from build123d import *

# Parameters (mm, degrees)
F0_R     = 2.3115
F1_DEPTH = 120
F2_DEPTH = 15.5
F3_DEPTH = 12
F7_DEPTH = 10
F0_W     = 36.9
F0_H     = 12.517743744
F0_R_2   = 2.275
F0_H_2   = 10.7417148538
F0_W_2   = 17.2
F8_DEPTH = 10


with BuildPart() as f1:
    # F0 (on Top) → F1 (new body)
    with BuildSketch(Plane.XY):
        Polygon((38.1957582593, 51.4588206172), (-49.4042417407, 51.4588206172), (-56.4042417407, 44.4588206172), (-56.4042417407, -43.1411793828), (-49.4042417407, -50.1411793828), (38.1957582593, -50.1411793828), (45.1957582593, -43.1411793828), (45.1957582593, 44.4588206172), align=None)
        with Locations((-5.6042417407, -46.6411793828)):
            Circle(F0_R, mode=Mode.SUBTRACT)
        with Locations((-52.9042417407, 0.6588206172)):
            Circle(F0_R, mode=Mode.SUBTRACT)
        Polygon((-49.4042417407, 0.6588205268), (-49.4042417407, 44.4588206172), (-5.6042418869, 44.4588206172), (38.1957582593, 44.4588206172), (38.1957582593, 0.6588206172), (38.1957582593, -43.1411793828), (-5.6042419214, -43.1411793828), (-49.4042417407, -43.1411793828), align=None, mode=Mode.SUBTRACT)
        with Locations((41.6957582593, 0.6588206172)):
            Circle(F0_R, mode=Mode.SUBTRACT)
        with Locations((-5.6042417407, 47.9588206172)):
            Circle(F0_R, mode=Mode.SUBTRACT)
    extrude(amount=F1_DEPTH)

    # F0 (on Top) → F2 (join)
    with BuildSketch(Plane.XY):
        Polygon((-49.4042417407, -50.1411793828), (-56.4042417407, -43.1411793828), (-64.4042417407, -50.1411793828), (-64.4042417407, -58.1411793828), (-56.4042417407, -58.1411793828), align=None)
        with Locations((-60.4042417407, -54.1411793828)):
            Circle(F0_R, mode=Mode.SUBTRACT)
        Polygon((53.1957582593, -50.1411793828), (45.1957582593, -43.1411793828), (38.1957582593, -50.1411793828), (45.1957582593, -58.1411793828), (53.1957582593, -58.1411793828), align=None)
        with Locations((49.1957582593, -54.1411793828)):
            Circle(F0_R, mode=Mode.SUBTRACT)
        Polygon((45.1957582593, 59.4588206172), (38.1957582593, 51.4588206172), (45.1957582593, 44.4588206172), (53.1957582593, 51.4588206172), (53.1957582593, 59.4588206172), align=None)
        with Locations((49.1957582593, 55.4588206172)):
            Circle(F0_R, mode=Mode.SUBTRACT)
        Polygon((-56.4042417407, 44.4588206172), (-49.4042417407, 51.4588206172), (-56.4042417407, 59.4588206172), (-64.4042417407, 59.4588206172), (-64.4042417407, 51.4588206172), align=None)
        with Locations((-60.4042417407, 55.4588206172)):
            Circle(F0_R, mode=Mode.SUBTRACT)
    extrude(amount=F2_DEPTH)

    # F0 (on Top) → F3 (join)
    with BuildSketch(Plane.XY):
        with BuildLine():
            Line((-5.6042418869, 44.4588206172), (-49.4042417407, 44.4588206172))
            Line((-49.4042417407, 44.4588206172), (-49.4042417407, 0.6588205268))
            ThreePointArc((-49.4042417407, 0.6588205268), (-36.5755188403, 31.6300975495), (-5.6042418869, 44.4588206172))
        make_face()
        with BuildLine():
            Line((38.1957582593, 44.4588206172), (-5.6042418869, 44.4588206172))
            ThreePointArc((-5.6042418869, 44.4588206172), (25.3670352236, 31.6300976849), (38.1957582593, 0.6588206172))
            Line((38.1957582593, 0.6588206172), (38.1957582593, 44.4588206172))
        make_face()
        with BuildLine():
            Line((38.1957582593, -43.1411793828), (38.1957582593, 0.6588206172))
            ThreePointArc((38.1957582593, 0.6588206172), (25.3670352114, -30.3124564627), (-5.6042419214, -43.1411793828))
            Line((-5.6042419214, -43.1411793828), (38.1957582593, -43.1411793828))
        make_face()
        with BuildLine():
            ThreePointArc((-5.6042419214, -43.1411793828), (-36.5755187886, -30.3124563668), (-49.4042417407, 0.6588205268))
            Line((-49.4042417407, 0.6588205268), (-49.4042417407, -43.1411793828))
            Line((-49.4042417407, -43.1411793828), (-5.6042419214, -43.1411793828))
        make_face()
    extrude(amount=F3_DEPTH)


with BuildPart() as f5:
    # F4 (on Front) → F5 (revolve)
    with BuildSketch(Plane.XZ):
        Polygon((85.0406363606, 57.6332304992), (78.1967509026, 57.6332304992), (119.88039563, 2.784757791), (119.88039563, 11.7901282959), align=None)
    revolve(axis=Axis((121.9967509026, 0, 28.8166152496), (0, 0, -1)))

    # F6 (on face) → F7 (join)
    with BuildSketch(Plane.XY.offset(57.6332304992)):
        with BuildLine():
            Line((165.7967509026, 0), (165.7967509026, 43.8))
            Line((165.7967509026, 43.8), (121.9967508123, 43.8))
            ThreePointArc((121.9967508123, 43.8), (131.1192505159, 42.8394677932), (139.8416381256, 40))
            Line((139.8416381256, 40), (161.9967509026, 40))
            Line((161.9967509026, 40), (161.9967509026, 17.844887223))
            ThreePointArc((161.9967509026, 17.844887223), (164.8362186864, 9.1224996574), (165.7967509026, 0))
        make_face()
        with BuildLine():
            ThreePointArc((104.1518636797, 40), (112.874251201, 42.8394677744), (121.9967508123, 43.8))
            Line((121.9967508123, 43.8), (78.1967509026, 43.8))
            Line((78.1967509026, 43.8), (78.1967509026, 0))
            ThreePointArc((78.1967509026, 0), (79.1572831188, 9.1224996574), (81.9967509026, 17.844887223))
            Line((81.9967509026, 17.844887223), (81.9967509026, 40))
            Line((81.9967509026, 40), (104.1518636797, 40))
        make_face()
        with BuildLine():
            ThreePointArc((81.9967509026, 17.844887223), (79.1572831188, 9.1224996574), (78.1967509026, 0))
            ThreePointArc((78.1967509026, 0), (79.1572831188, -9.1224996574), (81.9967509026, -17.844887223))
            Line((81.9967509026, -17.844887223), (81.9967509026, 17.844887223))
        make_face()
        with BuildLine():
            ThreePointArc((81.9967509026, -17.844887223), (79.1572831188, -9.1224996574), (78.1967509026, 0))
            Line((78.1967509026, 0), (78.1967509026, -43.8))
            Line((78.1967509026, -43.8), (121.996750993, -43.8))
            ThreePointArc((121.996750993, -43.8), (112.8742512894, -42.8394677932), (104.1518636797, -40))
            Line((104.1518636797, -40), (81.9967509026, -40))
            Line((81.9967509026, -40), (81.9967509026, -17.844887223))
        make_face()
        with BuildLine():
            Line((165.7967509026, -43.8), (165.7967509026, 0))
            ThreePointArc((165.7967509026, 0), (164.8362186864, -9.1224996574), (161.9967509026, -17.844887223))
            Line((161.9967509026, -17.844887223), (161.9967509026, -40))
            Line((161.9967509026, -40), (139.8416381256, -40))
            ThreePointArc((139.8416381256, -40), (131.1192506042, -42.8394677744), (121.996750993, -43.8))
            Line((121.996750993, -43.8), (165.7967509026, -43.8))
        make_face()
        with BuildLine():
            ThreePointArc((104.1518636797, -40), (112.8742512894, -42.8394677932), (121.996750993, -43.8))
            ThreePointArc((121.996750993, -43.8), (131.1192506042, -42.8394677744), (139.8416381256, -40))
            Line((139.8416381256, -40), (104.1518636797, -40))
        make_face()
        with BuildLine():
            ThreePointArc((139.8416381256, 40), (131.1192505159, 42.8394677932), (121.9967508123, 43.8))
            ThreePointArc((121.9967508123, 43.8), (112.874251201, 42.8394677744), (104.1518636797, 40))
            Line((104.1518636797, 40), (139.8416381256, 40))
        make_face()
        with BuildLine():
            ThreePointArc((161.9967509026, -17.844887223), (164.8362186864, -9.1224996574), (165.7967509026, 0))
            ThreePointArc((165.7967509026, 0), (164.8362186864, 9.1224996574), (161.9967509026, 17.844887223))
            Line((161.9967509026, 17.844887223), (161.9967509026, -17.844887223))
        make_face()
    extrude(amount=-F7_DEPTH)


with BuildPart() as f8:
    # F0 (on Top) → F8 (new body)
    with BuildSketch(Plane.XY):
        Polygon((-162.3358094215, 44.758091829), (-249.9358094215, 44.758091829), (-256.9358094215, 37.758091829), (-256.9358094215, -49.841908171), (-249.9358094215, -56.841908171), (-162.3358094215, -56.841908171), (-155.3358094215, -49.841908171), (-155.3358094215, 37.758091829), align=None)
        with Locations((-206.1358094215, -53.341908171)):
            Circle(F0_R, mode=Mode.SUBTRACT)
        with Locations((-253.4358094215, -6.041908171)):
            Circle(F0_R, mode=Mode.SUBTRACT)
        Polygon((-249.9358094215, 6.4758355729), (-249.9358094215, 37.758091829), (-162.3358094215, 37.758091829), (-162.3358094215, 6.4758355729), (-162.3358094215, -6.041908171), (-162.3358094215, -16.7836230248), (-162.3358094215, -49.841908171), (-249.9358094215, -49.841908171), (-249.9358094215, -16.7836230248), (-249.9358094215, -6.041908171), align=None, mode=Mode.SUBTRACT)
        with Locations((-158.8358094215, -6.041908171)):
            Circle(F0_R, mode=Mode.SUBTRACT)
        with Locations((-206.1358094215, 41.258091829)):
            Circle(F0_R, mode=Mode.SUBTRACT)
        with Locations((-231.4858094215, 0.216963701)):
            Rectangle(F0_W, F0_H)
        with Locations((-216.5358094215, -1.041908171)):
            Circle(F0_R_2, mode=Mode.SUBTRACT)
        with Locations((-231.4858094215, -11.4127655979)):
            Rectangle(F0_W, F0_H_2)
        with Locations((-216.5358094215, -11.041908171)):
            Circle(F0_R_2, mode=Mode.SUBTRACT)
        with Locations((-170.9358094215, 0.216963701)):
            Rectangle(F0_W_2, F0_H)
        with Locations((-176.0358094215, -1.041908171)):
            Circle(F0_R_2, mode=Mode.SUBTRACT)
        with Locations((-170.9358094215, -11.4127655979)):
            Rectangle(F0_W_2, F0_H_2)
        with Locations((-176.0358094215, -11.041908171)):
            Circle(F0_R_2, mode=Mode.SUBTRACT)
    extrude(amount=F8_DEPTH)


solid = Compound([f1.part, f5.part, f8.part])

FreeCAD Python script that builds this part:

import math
import FreeCAD as App
import Part
import Sketcher
from FreeCAD import Vector
Q = App.Units.Quantity

doc = App.newDocument("Part")
body = doc.addObject("PartDesign::Body", "Body")

# Sketch on XY plane
sketch1 = body.newObject("Sketcher::SketchObject", "Sketch")
sketch1.AttachmentSupport = (doc.getObject("XY_Plane"), [""])
sketch1.MapMode = "FlatFace"
sketch1.addGeometry([
    Part.LineSegment(Vector(38.195758, 51.458821, 0), Vector(-49.404242, 51.458821, 0)),  # 0
    Part.LineSegment(Vector(-49.404242, 51.458821, 0), Vector(-56.404242, 44.458821, 0)),  # 1
    Part.LineSegment(Vector(-56.404242, 44.458821, 0), Vector(-56.404242, -43.141179, 0)),  # 2
    Part.LineSegment(Vector(-56.404242, -43.141179, 0), Vector(-49.404242, -50.141179, 0)),  # 3
    Part.LineSegment(Vector(-49.404242, -50.141179, 0), Vector(38.195758, -50.141179, 0)),  # 4
    Part.LineSegment(Vector(38.195758, -50.141179, 0), Vector(45.195758, -43.141179, 0)),  # 5
    Part.LineSegment(Vector(45.195758, -43.141179, 0), Vector(45.195758, 44.458821, 0)),  # 6
    Part.LineSegment(Vector(45.195758, 44.458821, 0), Vector(38.195758, 51.458821, 0)),  # 7
    Part.Circle(Vector(-5.604242, -46.641179, 0), Vector(0, 0, 1), 2.3115),  # 8
    Part.Circle(Vector(-52.904242, 0.658821, 0), Vector(0, 0, 1), 2.3115),  # 9
    Part.Circle(Vector(-5.604242, 47.958821, 0), Vector(0, 0, 1), 2.3115),  # 10
    Part.LineSegment(Vector(-49.404242, -43.141179, 0), Vector(-49.404242, 44.458821, 0)),  # 11
    Part.LineSegment(Vector(-49.404242, 44.458821, 0), Vector(38.195758, 44.458821, 0)),  # 12
    Part.LineSegment(Vector(38.195758, 44.458821, 0), Vector(38.195758, -43.141179, 0)),  # 13
    Part.LineSegment(Vector(38.195758, -43.141179, 0), Vector(-49.404242, -43.141179, 0)),  # 14
    Part.Circle(Vector(41.695758, 0.658821, 0), Vector(0, 0, 1), 2.3115),  # 15
], False)
sketch1.addConstraint([
    Sketcher.Constraint("Coincident", 0, 2, 1, 1),
    Sketcher.Constraint("Coincident", 1, 2, 2, 1),
    Sketcher.Constraint("Coincident", 2, 2, 3, 1),
    Sketcher.Constraint("Coincident", 3, 2, 4, 1),
    Sketcher.Constraint("Coincident", 4, 2, 5, 1),
    Sketcher.Constraint("Coincident", 5, 2, 6, 1),
    Sketcher.Constraint("Coincident", 6, 2, 7, 1),
    Sketcher.Constraint("Coincident", 7, 2, 0, 1),
    Sketcher.Constraint("Coincident", 11, 2, 12, 1),
    Sketcher.Constraint("Coincident", 12, 2, 13, 1),
    Sketcher.Constraint("Coincident", 13, 2, 14, 1),
    Sketcher.Constraint("Coincident", 14, 2, 11, 1),
    Sketcher.Constraint("Horizontal", 0),
    Sketcher.Constraint("Vertical", 2),
    Sketcher.Constraint("Horizontal", 4),
    Sketcher.Constraint("Vertical", 6),
    Sketcher.Constraint("Vertical", 11),
    Sketcher.Constraint("Horizontal", 12),
    Sketcher.Constraint("Vertical", 13),
    Sketcher.Constraint("Horizontal", 14),
    Sketcher.Constraint("Equal", 8, 9),
    Sketcher.Constraint("Equal", 9, 10),
    Sketcher.Constraint("Equal", 10, 15),
    Sketcher.Constraint("Perpendicular", 1, 3),
    Sketcher.Constraint("Perpendicular", 3, 5),
    Sketcher.Constraint("Perpendicular", 5, 7),
    Sketcher.Constraint("Horizontal", 9, 3, 15, 3),
    Sketcher.Constraint("Horizontal", 2, 2, 5, 2),
    Sketcher.Constraint("Horizontal", 1, 2, 6, 2),
    Sketcher.Constraint("Horizontal", 6, 2, 11, 2),
    Sketcher.Constraint("Horizontal", 5, 2, 13, 2),
    Sketcher.Constraint("Vertical", 8, 3, 10, 3),
    Sketcher.Constraint("Vertical", 0, 2, 3, 2),
    Sketcher.Constraint("Vertical", 4, 2, 7, 2),
    Sketcher.Constraint("Vertical", 3, 2, 11, 2),
    Sketcher.Constraint("Vertical", 7, 2, 12, 2),
    Sketcher.Constraint("Equal", 14, 2),
    Sketcher.Constraint("Diameter", 8, Q("4.623 mm")),
    Sketcher.Constraint("DistanceX", 0, 2, 0, 1, Q("87.6 mm")),
    Sketcher.Constraint("DistanceX", 1, 2, 0, 2, Q("7 mm")),
    Sketcher.Constraint("DistanceX", 9, 3, 8, 3, Q("47.3 mm")),
    Sketcher.Constraint("DistanceY", 8, 3, 9, 3, Q("47.3 mm")),
    Sketcher.Constraint("DistanceY", 9, 3, 10, 3, Q("47.3 mm")),
    Sketcher.Constraint("DistanceX", 8, 3, 15, 3, Q("47.3 mm")),
    Sketcher.Constraint("DistanceX", 0, 2, 10, 3, Q("43.8 mm")),
    Sketcher.Constraint("DistanceY", 10, 3, 0, 2, Q("3.5 mm")),
    Sketcher.Constraint("DistanceX", 8, 3, -1, 1, Q("5.604242 mm")),
    Sketcher.Constraint("DistanceY", 8, 3, -1, 1, Q("46.641179 mm")),
])
pad1 = body.newObject("PartDesign::Pad", "Pad")
pad1.Profile = sketch1
pad1.Length = 120

# Sketch on XY plane
sketch2 = body.newObject("Sketcher::SketchObject", "Sketch001")
sketch2.AttachmentSupport = (doc.getObject("XY_Plane"), [""])
sketch2.MapMode = "FlatFace"
sketch2.addGeometry([
    Part.LineSegment(Vector(-49.404242, -50.141179, 0), Vector(-56.404242, -43.141179, 0)),  # 0
    Part.LineSegment(Vector(-56.404242, -43.141179, 0), Vector(-64.404242, -50.141179, 0)),  # 1
    Part.LineSegment(Vector(-64.404242, -50.141179, 0), Vector(-64.404242, -58.141179, 0)),  # 2
    Part.LineSegment(Vector(-64.404242, -58.141179, 0), Vector(-56.404242, -58.141179, 0)),  # 3
    Part.LineSegment(Vector(-56.404242, -58.141179, 0), Vector(-49.404242, -50.141179, 0)),  # 4
    Part.Circle(Vector(-60.404242, -54.141179, 0), Vector(0, 0, 1), 2.3115),  # 5
    Part.LineSegment(Vector(53.195758, -50.141179, 0), Vector(45.195758, -43.141179, 0)),  # 6
    Part.LineSegment(Vector(45.195758, -43.141179, 0), Vector(38.195758, -50.141179, 0)),  # 7
    Part.LineSegment(Vector(38.195758, -50.141179, 0), Vector(45.195758, -58.141179, 0)),  # 8
    Part.LineSegment(Vector(45.195758, -58.141179, 0), Vector(53.195758, -58.141179, 0)),  # 9
    Part.LineSegment(Vector(53.195758, -58.141179, 0), Vector(53.195758, -50.141179, 0)),  # 10
    Part.Circle(Vector(49.195758, -54.141179, 0), Vector(0, 0, 1), 2.3115),  # 11
    Part.LineSegment(Vector(45.195758, 59.458821, 0), Vector(38.195758, 51.458821, 0)),  # 12
    Part.LineSegment(Vector(38.195758, 51.458821, 0), Vector(45.195758, 44.458821, 0)),  # 13
    Part.LineSegment(Vector(45.195758, 44.458821, 0), Vector(53.195758, 51.458821, 0)),  # 14
    Part.LineSegment(Vector(53.195758, 51.458821, 0), Vector(53.195758, 59.458821, 0)),  # 15
    Part.LineSegment(Vector(53.195758, 59.458821, 0), Vector(45.195758, 59.458821, 0)),  # 16
    Part.Circle(Vector(49.195758, 55.458821, 0), Vector(0, 0, 1), 2.3115),  # 17
    Part.LineSegment(Vector(-56.404242, 44.458821, 0), Vector(-49.404242, 51.458821, 0)),  # 18
    Part.LineSegment(Vector(-49.404242, 51.458821, 0), Vector(-56.404242, 59.458821, 0)),  # 19
    Part.LineSegment(Vector(-56.404242, 59.458821, 0), Vector(-64.404242, 59.458821, 0)),  # 20
    Part.LineSegment(Vector(-64.404242, 59.458821, 0), Vector(-64.404242, 51.458821, 0)),  # 21
    Part.LineSegment(Vector(-64.404242, 51.458821, 0), Vector(-56.404242, 44.458821, 0)),  # 22
    Part.Circle(Vector(-60.404242, 55.458821, 0), Vector(0, 0, 1), 2.3115),  # 23
], False)
sketch2.addConstraint([
    Sketcher.Constraint("Coincident", 0, 2, 1, 1),
    Sketcher.Constraint("Coincident", 1, 2, 2, 1),
    Sketcher.Constraint("Coincident", 2, 2, 3, 1),
    Sketcher.Constraint("Coincident", 3, 2, 4, 1),
    Sketcher.Constraint("Coincident", 4, 2, 0, 1),
    Sketcher.Constraint("Coincident", 6, 2, 7, 1),
    Sketcher.Constraint("Coincident", 7, 2, 8, 1),
    Sketcher.Constraint("Coincident", 8, 2, 9, 1),
    Sketcher.Constraint("Coincident", 9, 2, 10, 1),
    Sketcher.Constraint("Coincident", 10, 2, 6, 1),
    Sketcher.Constraint("Coincident", 12, 2, 13, 1),
    Sketcher.Constraint("Coincident", 13, 2, 14, 1),
    Sketcher.Constraint("Coincident", 14, 2, 15, 1),
    Sketcher.Constraint("Coincident", 15, 2, 16, 1),
    Sketcher.Constraint("Coincident", 16, 2, 12, 1),
    Sketcher.Constraint("Coincident", 18, 2, 19, 1),
    Sketcher.Constraint("Coincident", 19, 2, 20, 1),
    Sketcher.Constraint("Coincident", 20, 2, 21, 1),
    Sketcher.Constraint("Coincident", 21, 2, 22, 1),
    Sketcher.Constraint("Coincident", 22, 2, 18, 1),
    Sketcher.Constraint("Vertical", 2),
    Sketcher.Constraint("Horizontal", 3),
    Sketcher.Constraint("Horizontal", 9),
    Sketcher.Constraint("Vertical", 10),
    Sketcher.Constraint("Vertical", 15),
    Sketcher.Constraint("Horizontal", 16),
    Sketcher.Constraint("Horizontal", 20),
    Sketcher.Constraint("Vertical", 21),
    Sketcher.Constraint("Equal", 5, 11),
    Sketcher.Constraint("Equal", 11, 17),
    Sketcher.Constraint("Equal", 17, 23),
    Sketcher.Constraint("Perpendicular", 4, 6),
    Sketcher.Constraint("Perpendicular", 0, 7),
    Sketcher.Constraint("Perpendicular", 1, 8),
    Sketcher.Constraint("Perpendicular", 6, 12),
    Sketcher.Constraint("Perpendicular", 7, 13),
    Sketcher.Constraint("Perpendicular", 8, 14),
    Sketcher.Constraint("Perpendicular", 13, 18),
    Sketcher.Constraint("Perpendicular", 14, 19),
    Sketcher.Constraint("Perpendicular", 12, 22),
    Sketcher.Constraint("Horizontal", 5, 3, 11, 3),
    Sketcher.Constraint("Horizontal", 17, 3, 23, 3),
    Sketcher.Constraint("Horizontal", 1, 2, 4, 2),
    Sketcher.Constraint("Horizontal", 0, 2, 6, 2),
    Sketcher.Constraint("Horizontal", 4, 2, 7, 2),
    Sketcher.Constraint("Horizontal", 3, 2, 8, 2),
    Sketcher.Constraint("Horizontal", 7, 2, 10, 2),
    Sketcher.Constraint("Horizontal", 12, 2, 14, 2),
    Sketcher.Constraint("Horizontal", 14, 2, 18, 2),
    Sketcher.Constraint("Horizontal", 16, 2, 19, 2),
    Sketcher.Constraint("Horizontal", 18, 2, 21, 2),
    Sketcher.Constraint("Horizontal", 13, 2, 22, 2),
    Sketcher.Constraint("Vertical", 11, 3, 17, 3),
    Sketcher.Constraint("Vertical", 5, 3, 23, 3),
    Sketcher.Constraint("Vertical", 0, 2, 3, 2),
    Sketcher.Constraint("Vertical", 6, 2, 8, 2),
    Sketcher.Constraint("Vertical", 7, 2, 12, 2),
    Sketcher.Constraint("Vertical", 8, 2, 13, 2),
    Sketcher.Constraint("Vertical", 13, 2, 16, 2),
    Sketcher.Constraint("Vertical", 4, 2, 18, 2),
    Sketcher.Constraint("Vertical", 3, 2, 19, 2),
    Sketcher.Constraint("DistanceX", 3, 1, 3, 2, Q("8 mm")),
    Sketcher.Constraint("Diameter", 5, Q("4.623 mm")),
    Sketcher.Constraint("DistanceX", 5, 3, 0, 2, Q("4 mm")),
    Sketcher.Constraint("DistanceY", 5, 3, 0, 2, Q("11 mm")),
    Sketcher.Constraint("DistanceY", 5, 3, 1, 2, Q("4 mm")),
    Sketcher.Constraint("DistanceX", 6, 2, 11, 3, Q("4 mm")),
    Sketcher.Constraint("DistanceY", 12, 2, 17, 3, Q("4 mm")),
    Sketcher.Constraint("DistanceX", 5, 3, 11, 3, Q("109.6 mm")),
    Sketcher.Constraint("DistanceY", 11, 3, 17, 3, Q("109.6 mm")),
    Sketcher.Constraint("DistanceX", 5, 3, -1, 1, Q("60.404242 mm")),
    Sketcher.Constraint("DistanceY", 5, 3, -1, 1, Q("54.141179 mm")),
])
pad2 = body.newObject("PartDesign::Pad", "Pad001")
pad2.Profile = sketch2
pad2.Length = 15.5

# Sketch on XY plane
sketch3 = body.newObject("Sketcher::SketchObject", "Sketch002")
sketch3.AttachmentSupport = (doc.getObject("XY_Plane"), [""])
sketch3.MapMode = "FlatFace"
sketch3.addGeometry([
    Part.LineSegment(Vector(-5.604242, 44.458821, 0), Vector(-49.404242, 44.458821, 0)),  # 0
    Part.LineSegment(Vector(-49.404242, 44.458821, 0), Vector(-49.404242, 0.658821, 0)),  # 1
    Part.ArcOfCircle(Part.Circle(Vector(-5.604242, 0.658821, 0), Vector(0, 0, 1), 43.8), math.radians(90), math.radians(180)),  # 2
    Part.LineSegment(Vector(38.195758, 44.458821, 0), Vector(-5.604242, 44.458821, 0)),  # 3
    Part.ArcOfCircle(Part.Circle(Vector(-5.604242, 0.658821, 0), Vector(0, 0, 1), 43.8), math.radians(0), math.radians(90)),  # 4
    Part.LineSegment(Vector(38.195758, 0.658821, 0), Vector(38.195758, 44.458821, 0)),  # 5
    Part.LineSegment(Vector(38.195758, -43.141179, 0), Vector(38.195758, 0.658821, 0)),  # 6
    Part.ArcOfCircle(Part.Circle(Vector(-5.604242, 0.658821, 0), Vector(0, 0, 1), 43.8), math.radians(-90), math.radians(0)),  # 7
    Part.LineSegment(Vector(-5.604242, -43.141179, 0), Vector(38.195758, -43.141179, 0)),  # 8
    Part.ArcOfCircle(Part.Circle(Vector(-5.604242, 0.658821, 0), Vector(0, 0, 1), 43.8), math.radians(-180), math.radians(-90)),  # 9
    Part.LineSegment(Vector(-49.404242, 0.658821, 0), Vector(-49.404242, -43.141179, 0)),  # 10
    Part.LineSegment(Vector(-49.404242, -43.141179, 0), Vector(-5.604242, -43.141179, 0)),  # 11
], False)
sketch3.addConstraint([
    Sketcher.Constraint("Coincident", 0, 2, 1, 1),
    Sketcher.Constraint("Tangent", 1, 2, 2, 2),
    Sketcher.Constraint("Tangent", 2, 1, 0, 1),
    Sketcher.Constraint("Tangent", 3, 2, 4, 2),
    Sketcher.Constraint("Tangent", 4, 1, 5, 1),
    Sketcher.Constraint("Coincident", 5, 2, 3, 1),
    Sketcher.Constraint("Tangent", 6, 2, 7, 2),
    Sketcher.Constraint("Tangent", 7, 1, 8, 1),
    Sketcher.Constraint("Coincident", 8, 2, 6, 1),
    Sketcher.Constraint("Tangent", 9, 1, 10, 1),
    Sketcher.Constraint("Coincident", 10, 2, 11, 1),
    Sketcher.Constraint("Tangent", 11, 2, 9, 2),
    Sketcher.Constraint("Horizontal", 0),
    Sketcher.Constraint("Vertical", 1),
    Sketcher.Constraint("Horizontal", 3),
    Sketcher.Constraint("Vertical", 5),
    Sketcher.Constraint("Vertical", 6),
    Sketcher.Constraint("Horizontal", 8),
    Sketcher.Constraint("Vertical", 10),
    Sketcher.Constraint("Horizontal", 11),
    Sketcher.Constraint("Coincident", 4, 3, 2, 3),
    Sketcher.Constraint("Coincident", 7, 3, 2, 3),
    Sketcher.Constraint("Coincident", 9, 3, 2, 3),
    Sketcher.Constraint("Equal", 2, 4),
    Sketcher.Constraint("Equal", 4, 7),
    Sketcher.Constraint("Equal", 7, 9),
    Sketcher.Constraint("Radius", 2, Q("43.8 mm")),
    Sketcher.Constraint("DistanceX", 2, 3, -1, 1, Q("5.604242 mm")),
    Sketcher.Constraint("DistanceY", -1, 1, 2, 3, Q("0.658821 mm")),
])
pad3 = body.newObject("PartDesign::Pad", "Pad002")
pad3.Profile = sketch3
pad3.Length = 12
body2 = doc.addObject("PartDesign::Body", "Body001")

# Sketch on XZ plane
sketch4 = body2.newObject("Sketcher::SketchObject", "Sketch003")
sketch4.AttachmentSupport = (doc.getObject("XZ_Plane001"), [""])
sketch4.MapMode = "FlatFace"
sketch4.addGeometry([
    Part.LineSegment(Vector(85.040636, 57.63323, 0), Vector(78.196751, 57.63323, 0)),
    Part.LineSegment(Vector(78.196751, 57.63323, 0), Vector(119.880396, 2.784758, 0)),
    Part.LineSegment(Vector(119.880396, 2.784758, 0), Vector(119.880396, 11.790128, 0)),
    Part.LineSegment(Vector(119.880396, 11.790128, 0), Vector(85.040636, 57.63323, 0)),
], False)
sketch4.addGeometry(Part.LineSegment(Vector(121.996751, 57.63323, 0), Vector(121.996751, 2.784758, 0)), True)  # axis
sketch4.addConstraint([
    Sketcher.Constraint("Coincident", 0, 2, 1, 1),
    Sketcher.Constraint("Coincident", 1, 2, 2, 1),
    Sketcher.Constraint("Coincident", 2, 2, 3, 1),
    Sketcher.Constraint("Coincident", 3, 2, 0, 1),
    Sketcher.Constraint("Horizontal", 0),
    Sketcher.Constraint("Vertical", 2),
    Sketcher.Constraint("Vertical", 4),
    Sketcher.Constraint("Parallel", 1, 3),
    Sketcher.Constraint("Horizontal", 3, 2, 4, 1),
    Sketcher.Constraint("Horizontal", 1, 2, 4, 2),
    Sketcher.Constraint("DistanceX", 0, 2, 4, 1, Q("43.8 mm")),
    Sketcher.Constraint("Distance", 3, Q("57.5795 mm")),
    Sketcher.Constraint("DistanceY", 2, 1, 2, 2, Q("9.005371 mm")),
    Sketcher.Constraint("DistanceX", 0, 2, 0, 1, Q("6.843885 mm")),
    Sketcher.Constraint("DistanceX", -1, 1, 0, 2, Q("78.196751 mm")),
    Sketcher.Constraint("DistanceY", -1, 1, 0, 2, Q("57.63323 mm")),
])
revolution = body2.newObject("PartDesign::Revolution", "Revolution")
revolution.Profile = sketch4
revolution.ReferenceAxis = (sketch4, ["Axis0"])
revolution.Angle = 360

# Sketch on XY plane
sketch5 = body2.newObject("Sketcher::SketchObject", "Sketch004")
sketch5.AttachmentSupport = (doc.getObject("XY_Plane001"), [""])
sketch5.MapMode = "FlatFace"
sketch5.AttachmentOffset = App.Placement(Vector(0, 0, 57.63323), App.Rotation())
sketch5.addGeometry([
    Part.LineSegment(Vector(165.796751, -43.8, 0), Vector(165.796751, 43.8, 0)),  # 0
    Part.LineSegment(Vector(165.796751, 43.8, 0), Vector(78.196751, 43.8, 0)),  # 1
    Part.LineSegment(Vector(78.196751, 43.8, 0), Vector(78.196751, -43.8, 0)),  # 2
    Part.LineSegment(Vector(78.196751, -43.8, 0), Vector(165.796751, -43.8, 0)),  # 3
    Part.LineSegment(Vector(161.996751, 40, 0), Vector(161.996751, -40, 0)),  # 4
    Part.LineSegment(Vector(161.996751, -40, 0), Vector(81.996751, -40, 0)),  # 5
    Part.LineSegment(Vector(81.996751, -40, 0), Vector(81.996751, 40, 0)),  # 6
    Part.LineSegment(Vector(81.996751, 40, 0), Vector(161.996751, 40, 0)),  # 7
], False)
sketch5.addConstraint([
    Sketcher.Constraint("Coincident", 0, 2, 1, 1),
    Sketcher.Constraint("Coincident", 1, 2, 2, 1),
    Sketcher.Constraint("Coincident", 2, 2, 3, 1),
    Sketcher.Constraint("Coincident", 3, 2, 0, 1),
    Sketcher.Constraint("Coincident", 4, 2, 5, 1),
    Sketcher.Constraint("Coincident", 5, 2, 6, 1),
    Sketcher.Constraint("Coincident", 6, 2, 7, 1),
    Sketcher.Constraint("Coincident", 7, 2, 4, 1),
    Sketcher.Constraint("Vertical", 0),
    Sketcher.Constraint("Horizontal", 1),
    Sketcher.Constraint("Vertical", 2),
    Sketcher.Constraint("Horizontal", 3),
    Sketcher.Constraint("Vertical", 4),
    Sketcher.Constraint("Horizontal", 5),
    Sketcher.Constraint("Vertical", 6),
    Sketcher.Constraint("Horizontal", 7),
    Sketcher.Constraint("Equal", 3, 0),
    Sketcher.Constraint("Equal", 7, 4),
    Sketcher.Constraint("DistanceX", 5, 2, 5, 1, Q("80 mm")),
    Sketcher.Constraint("DistanceX", 1, 2, 1, 1, Q("87.6 mm")),
    Sketcher.Constraint("DistanceY", 4, 2, -1, 1, Q("40 mm")),
    Sketcher.Constraint("DistanceY", -1, 1, 0, 2, Q("43.8 mm")),
    Sketcher.Constraint("DistanceX", 4, 2, 3, 2, Q("3.8 mm")),
    Sketcher.Constraint("DistanceX", -1, 1, 0, 2, Q("165.796751 mm")),
])
pad4 = body2.newObject("PartDesign::Pad", "Pad003")
pad4.Profile = sketch5
pad4.Length = 10
pad4.Reversed = True
body3 = doc.addObject("PartDesign::Body", "Body002")

# Sketch on XY plane
sketch6 = body3.newObject("Sketcher::SketchObject", "Sketch005")
sketch6.AttachmentSupport = (doc.getObject("XY_Plane002"), [""])
sketch6.MapMode = "FlatFace"
sketch6.addGeometry([
    Part.LineSegment(Vector(-162.335809, 44.758092, 0), Vector(-249.935809, 44.758092, 0)),  # 0
    Part.LineSegment(Vector(-249.935809, 44.758092, 0), Vector(-256.935809, 37.758092, 0)),  # 1
    Part.LineSegment(Vector(-256.935809, 37.758092, 0), Vector(-256.935809, -49.841908, 0)),  # 2
    Part.LineSegment(Vector(-256.935809, -49.841908, 0), Vector(-249.935809, -56.841908, 0)),  # 3
    Part.LineSegment(Vector(-249.935809, -56.841908, 0), Vector(-162.335809, -56.841908, 0)),  # 4
    Part.LineSegment(Vector(-162.335809, -56.841908, 0), Vector(-155.335809, -49.841908, 0)),  # 5
    Part.LineSegment(Vector(-155.335809, -49.841908, 0), Vector(-155.335809, 37.758092, 0)),  # 6
    Part.LineSegment(Vector(-155.335809, 37.758092, 0), Vector(-162.335809, 44.758092, 0)),  # 7
    Part.Circle(Vector(-253.435809, -6.041908, 0), Vector(0, 0, 1), 2.3115),  # 8
    Part.Circle(Vector(-216.535809, -11.041908, 0), Vector(0, 0, 1), 2.275),  # 9
    Part.Circle(Vector(-206.135809, -53.341908, 0), Vector(0, 0, 1), 2.3115),  # 10
    Part.LineSegment(Vector(-249.935809, -49.841908, 0), Vector(-249.935809, -16.783623, 0)),  # 11
    Part.LineSegment(Vector(-249.935809, -16.783623, 0), Vector(-213.035809, -16.783623, 0)),  # 12
    Part.LineSegment(Vector(-213.035809, -16.783623, 0), Vector(-213.035809, 6.475836, 0)),  # 13
    Part.LineSegment(Vector(-213.035809, 6.475836, 0), Vector(-249.935809, 6.475836, 0)),  # 14
    Part.LineSegment(Vector(-249.935809, 6.475836, 0), Vector(-249.935809, 37.758092, 0)),  # 15
    Part.LineSegment(Vector(-249.935809, 37.758092, 0), Vector(-162.335809, 37.758092, 0)),  # 16
    Part.LineSegment(Vector(-162.335809, 37.758092, 0), Vector(-162.335809, 6.475836, 0)),  # 17
    Part.LineSegment(Vector(-162.335809, 6.475836, 0), Vector(-179.535809, 6.475836, 0)),  # 18
    Part.LineSegment(Vector(-179.535809, 6.475836, 0), Vector(-179.535809, -16.783623, 0)),  # 19
    Part.LineSegment(Vector(-179.535809, -16.783623, 0), Vector(-162.335809, -16.783623, 0)),  # 20
    Part.LineSegment(Vector(-162.335809, -16.783623, 0), Vector(-162.335809, -49.841908, 0)),  # 21
    Part.LineSegment(Vector(-162.335809, -49.841908, 0), Vector(-249.935809, -49.841908, 0)),  # 22
    Part.Circle(Vector(-176.035809, -11.041908, 0), Vector(0, 0, 1), 2.275),  # 23
    Part.Circle(Vector(-158.835809, -6.041908, 0), Vector(0, 0, 1), 2.3115),  # 24
    Part.Circle(Vector(-216.535809, -1.041908, 0), Vector(0, 0, 1), 2.275),  # 25
    Part.Circle(Vector(-176.035809, -1.041908, 0), Vector(0, 0, 1), 2.275),  # 26
    Part.Circle(Vector(-206.135809, 41.258092, 0), Vector(0, 0, 1), 2.3115),  # 27
], False)
sketch6.addConstraint([
    Sketcher.Constraint("Coincident", 0, 2, 1, 1),
    Sketcher.Constraint("Coincident", 1, 2, 2, 1),
    Sketcher.Constraint("Coincident", 2, 2, 3, 1),
    Sketcher.Constraint("Coincident", 3, 2, 4, 1),
    Sketcher.Constraint("Coincident", 4, 2, 5, 1),
    Sketcher.Constraint("Coincident", 5, 2, 6, 1),
    Sketcher.Constraint("Coincident", 6, 2, 7, 1),
    Sketcher.Constraint("Coincident", 7, 2, 0, 1),
    Sketcher.Constraint("Coincident", 11, 2, 12, 1),
    Sketcher.Constraint("Coincident", 12, 2, 13, 1),
    Sketcher.Constraint("Coincident", 13, 2, 14, 1),
    Sketcher.Constraint("Coincident", 14, 2, 15, 1),
    Sketcher.Constraint("Coincident", 15, 2, 16, 1),
    Sketcher.Constraint("Coincident", 16, 2, 17, 1),
    Sketcher.Constraint("Coincident", 17, 2, 18, 1),
    Sketcher.Constraint("Coincident", 18, 2, 19, 1),
    Sketcher.Constraint("Coincident", 19, 2, 20, 1),
    Sketcher.Constraint("Coincident", 20, 2, 21, 1),
    Sketcher.Constraint("Coincident", 21, 2, 22, 1),
    Sketcher.Constraint("Coincident", 22, 2, 11, 1),
    Sketcher.Constraint("Horizontal", 0),
    Sketcher.Constraint("Vertical", 2),
    Sketcher.Constraint("Horizontal", 4),
    Sketcher.Constraint("Vertical", 6),
    Sketcher.Constraint("Vertical", 11),
    Sketcher.Constraint("Horizontal", 12),
    Sketcher.Constraint("Vertical", 13),
    Sketcher.Constraint("Horizontal", 14),
    Sketcher.Constraint("Vertical", 15),
    Sketcher.Constraint("Horizontal", 16),
    Sketcher.Constraint("Vertical", 17),
    Sketcher.Constraint("Horizontal", 18),
    Sketcher.Constraint("Vertical", 19),
    Sketcher.Constraint("Horizontal", 20),
    Sketcher.Constraint("Vertical", 21),
    Sketcher.Constraint("Horizontal", 22),
    Sketcher.Constraint("Equal", 8, 10),
    Sketcher.Constraint("Equal", 9, 23),
    Sketcher.Constraint("Equal", 10, 24),
    Sketcher.Constraint("Equal", 23, 25),
    Sketcher.Constraint("Equal", 25, 26),
    Sketcher.Constraint("Equal", 24, 27),
    Sketcher.Constraint("Perpendicular", 1, 3),
    Sketcher.Constraint("Perpendicular", 3, 5),
    Sketcher.Constraint("Perpendicular", 5, 7),
    Sketcher.Constraint("Horizontal", 9, 3, 23, 3),
    Sketcher.Constraint("Horizontal", 8, 3, 24, 3),
    Sketcher.Constraint("Horizontal", 25, 3, 26, 3),
    Sketcher.Constraint("Horizontal", 2, 2, 5, 2),
    Sketcher.Constraint("Horizontal", 1, 2, 6, 2),
    Sketcher.Constraint("Horizontal", 6, 2, 15, 2),
    Sketcher.Constraint("Horizontal", 14, 2, 17, 2),
    Sketcher.Constraint("Horizontal", 12, 2, 19, 2),
    Sketcher.Constraint("Horizontal", 5, 2, 21, 2),
    Sketcher.Constraint("Vertical", 9, 3, 25, 3),
    Sketcher.Constraint("Vertical", 23, 3, 26, 3),
    Sketcher.Constraint("Vertical", 10, 3, 27, 3),
    Sketcher.Constraint("Vertical", 0, 2, 3, 2),
    Sketcher.Constraint("Vertical", 4, 2, 7, 2),
    Sketcher.Constraint("Vertical", 3, 2, 11, 2),
    Sketcher.Constraint("Vertical", 11, 2, 14, 2),
    Sketcher.Constraint("Vertical", 7, 2, 16, 2),
    Sketcher.Constraint("Vertical", 17, 2, 20, 2),
    Sketcher.Constraint("Equal", 22, 2),
    Sketcher.Constraint("Diameter", 9, Q("4.55 mm")),
    Sketcher.Constraint("Diameter", 8, Q("4.623 mm")),
    Sketcher.Constraint("DistanceX", 0, 2, 0, 1, Q("87.6 mm")),
    Sketcher.Constraint("DistanceX", 12, 1, 12, 2, Q("36.9 mm")),
    Sketcher.Constraint("DistanceX", 18, 2, 18, 1, Q("17.2 mm")),
    Sketcher.Constraint("DistanceY", 9, 3, 8, 3, Q("5 mm")),
    Sketcher.Constraint("DistanceY", 9, 3, 25, 3, Q("10 mm")),
    Sketcher.Constraint("DistanceX", 1, 2, 0, 2, Q("7 mm")),
    Sketcher.Constraint("DistanceX", 12, 2, 23, 3, Q("37 mm")),
    Sketcher.Constraint("DistanceX", 8, 3, 9, 3, Q("36.9 mm")),
    Sketcher.Constraint("DistanceX", 9, 3, 10, 3, Q("10.4 mm")),
    Sketcher.Constraint("DistanceY", 10, 3, 9, 3, Q("42.3 mm")),
    Sketcher.Constraint("DistanceX", 9, 3, 23, 3, Q("40.5 mm")),
    Sketcher.Constraint("DistanceX", 23, 3, 24, 3, Q("17.2 mm")),
    Sketcher.Constraint("DistanceY", 25, 3, 27, 3, Q("42.3 mm")),
    Sketcher.Constraint("DistanceY", 27, 3, 0, 2, Q("3.5 mm")),
    Sketcher.Constraint("DistanceY", 13, 1, 13, 2, Q("23.259459 mm")),
    Sketcher.Constraint("DistanceY", 11, 1, 11, 2, Q("33.058285 mm")),
    Sketcher.Constraint("DistanceX", 8, 3, -1, 1, Q("253.435809 mm")),
    Sketcher.Constraint("DistanceY", 8, 3, -1, 1, Q("6.041908 mm")),
])
pad5 = body3.newObject("PartDesign::Pad", "Pad004")
pad5.Profile = sketch6
pad5.Length = 10

doc.recompute()
